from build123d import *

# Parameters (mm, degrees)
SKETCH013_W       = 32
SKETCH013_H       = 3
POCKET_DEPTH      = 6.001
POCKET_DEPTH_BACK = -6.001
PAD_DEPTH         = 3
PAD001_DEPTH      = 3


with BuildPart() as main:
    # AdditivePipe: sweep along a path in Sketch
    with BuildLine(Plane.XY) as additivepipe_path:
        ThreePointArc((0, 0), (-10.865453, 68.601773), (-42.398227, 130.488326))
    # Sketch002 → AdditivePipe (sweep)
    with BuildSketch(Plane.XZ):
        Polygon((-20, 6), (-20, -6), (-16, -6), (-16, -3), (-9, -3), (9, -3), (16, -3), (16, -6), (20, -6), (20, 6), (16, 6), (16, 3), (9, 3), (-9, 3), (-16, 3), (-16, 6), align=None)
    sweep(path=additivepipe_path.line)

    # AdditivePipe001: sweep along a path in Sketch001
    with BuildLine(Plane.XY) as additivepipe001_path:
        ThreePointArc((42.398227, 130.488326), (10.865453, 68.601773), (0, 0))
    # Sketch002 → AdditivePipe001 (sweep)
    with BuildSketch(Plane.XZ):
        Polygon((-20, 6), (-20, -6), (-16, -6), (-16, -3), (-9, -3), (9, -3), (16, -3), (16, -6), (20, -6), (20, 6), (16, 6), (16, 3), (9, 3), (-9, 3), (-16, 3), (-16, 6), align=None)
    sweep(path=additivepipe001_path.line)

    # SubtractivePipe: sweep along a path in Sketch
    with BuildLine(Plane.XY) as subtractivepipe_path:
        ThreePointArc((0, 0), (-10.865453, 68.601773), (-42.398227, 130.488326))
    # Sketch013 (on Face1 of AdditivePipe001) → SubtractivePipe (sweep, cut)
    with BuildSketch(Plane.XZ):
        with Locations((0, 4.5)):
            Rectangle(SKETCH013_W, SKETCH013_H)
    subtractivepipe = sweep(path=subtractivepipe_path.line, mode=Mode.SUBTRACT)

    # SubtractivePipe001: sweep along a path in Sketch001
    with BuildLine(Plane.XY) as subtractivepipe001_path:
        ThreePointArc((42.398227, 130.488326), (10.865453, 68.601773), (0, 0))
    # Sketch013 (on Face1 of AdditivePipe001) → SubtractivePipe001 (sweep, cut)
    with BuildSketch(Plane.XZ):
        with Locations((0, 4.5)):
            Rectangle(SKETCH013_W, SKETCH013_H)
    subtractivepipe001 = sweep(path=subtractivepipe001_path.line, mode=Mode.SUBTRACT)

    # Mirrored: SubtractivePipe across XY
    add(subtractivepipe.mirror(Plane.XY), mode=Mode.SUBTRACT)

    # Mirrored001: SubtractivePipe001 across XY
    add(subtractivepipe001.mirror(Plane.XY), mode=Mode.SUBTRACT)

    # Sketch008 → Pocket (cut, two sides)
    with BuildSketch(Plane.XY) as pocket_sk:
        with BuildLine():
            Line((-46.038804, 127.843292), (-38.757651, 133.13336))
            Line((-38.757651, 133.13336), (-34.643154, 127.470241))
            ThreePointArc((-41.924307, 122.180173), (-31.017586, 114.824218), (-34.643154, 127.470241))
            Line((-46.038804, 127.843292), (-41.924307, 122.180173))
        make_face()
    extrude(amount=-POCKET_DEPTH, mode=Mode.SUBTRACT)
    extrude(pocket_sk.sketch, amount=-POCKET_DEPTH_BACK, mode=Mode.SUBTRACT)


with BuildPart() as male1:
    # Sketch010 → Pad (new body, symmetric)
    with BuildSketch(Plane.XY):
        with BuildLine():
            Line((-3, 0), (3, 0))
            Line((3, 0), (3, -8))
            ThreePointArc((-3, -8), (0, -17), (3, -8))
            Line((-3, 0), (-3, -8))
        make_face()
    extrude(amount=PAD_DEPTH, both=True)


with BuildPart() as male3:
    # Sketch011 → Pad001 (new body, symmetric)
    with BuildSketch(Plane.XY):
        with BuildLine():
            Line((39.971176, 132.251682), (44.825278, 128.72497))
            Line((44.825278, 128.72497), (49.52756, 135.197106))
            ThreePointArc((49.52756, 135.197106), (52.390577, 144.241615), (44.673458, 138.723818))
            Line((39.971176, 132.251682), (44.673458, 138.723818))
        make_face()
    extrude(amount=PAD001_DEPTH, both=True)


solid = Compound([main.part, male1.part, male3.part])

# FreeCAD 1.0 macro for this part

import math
import FreeCAD as App
import Part
import Sketcher

V = App.Vector
Q = App.Units.Quantity

doc = App.newDocument("Part")
body = doc.addObject("PartDesign::Body", "Body")

# Sketch on XZ plane
sketch1 = body.newObject("Sketcher::SketchObject", "Sketch")
sketch1.AttachmentSupport = (doc.getObject("XZ_Plane"), [""])
sketch1.MapMode = "FlatFace"
sketch1.addGeometry([
    Part.LineSegment(V(-20, 6, 0), V(-20, -6, 0)),  # 0
    Part.LineSegment(V(-20, -6, 0), V(-16, -6, 0)),  # 1
    Part.LineSegment(V(-16, -6, 0), V(-16, -3, 0)),  # 2
    Part.LineSegment(V(-16, -3, 0), V(16, -3, 0)),  # 3
    Part.LineSegment(V(16, -3, 0), V(16, -6, 0)),  # 4
    Part.LineSegment(V(16, -6, 0), V(20, -6, 0)),  # 5
    Part.LineSegment(V(20, -6, 0), V(20, 6, 0)),  # 6
    Part.LineSegment(V(20, 6, 0), V(16, 6, 0)),  # 7
    Part.LineSegment(V(16, 6, 0), V(16, 3, 0)),  # 8
    Part.LineSegment(V(16, 3, 0), V(-16, 3, 0)),  # 9
    Part.LineSegment(V(-16, 3, 0), V(-16, 6, 0)),  # 10
    Part.LineSegment(V(-16, 6, 0), V(-20, 6, 0)),  # 11
], False)
sketch1.addConstraint([
    Sketcher.Constraint("Coincident", 0, 2, 1, 1),
    Sketcher.Constraint("Coincident", 1, 2, 2, 1),
    Sketcher.Constraint("Coincident", 2, 2, 3, 1),
    Sketcher.Constraint("Coincident", 3, 2, 4, 1),
    Sketcher.Constraint("Coincident", 4, 2, 5, 1),
    Sketcher.Constraint("Coincident", 5, 2, 6, 1),
    Sketcher.Constraint("Coincident", 6, 2, 7, 1),
    Sketcher.Constraint("Coincident", 7, 2, 8, 1),
    Sketcher.Constraint("Coincident", 8, 2, 9, 1),
    Sketcher.Constraint("Coincident", 9, 2, 10, 1),
    Sketcher.Constraint("Coincident", 10, 2, 11, 1),
    Sketcher.Constraint("Coincident", 11, 2, 0, 1),
    Sketcher.Constraint("Vertical", 0),
    Sketcher.Constraint("Horizontal", 1),
    Sketcher.Constraint("Vertical", 2),
    Sketcher.Constraint("Horizontal", 3),
    Sketcher.Constraint("Vertical", 4),
    Sketcher.Constraint("Horizontal", 5),
    Sketcher.Constraint("Vertical", 6),
    Sketcher.Constraint("Horizontal", 7),
    Sketcher.Constraint("Vertical", 8),
    Sketcher.Constraint("Horizontal", 9),
    Sketcher.Constraint("Vertical", 10),
    Sketcher.Constraint("Horizontal", 11),
    Sketcher.Constraint("Symmetric", 0, 2, 6, 2, -1, 1),
    Sketcher.Constraint("Symmetric", 2, 2, 8, 2, -1, 1),
    Sketcher.Constraint("Symmetric", 4, 2, 10, 2, -1, 1),
    Sketcher.Constraint("Symmetric", 1, 2, 4, 2, -2),
    Sketcher.Constraint("DistanceX", 1, 1, 1, 2, Q("4 mm")),
    Sketcher.Constraint("DistanceX", 3, 1, 3, 2, Q("32 mm")),
    Sketcher.Constraint("DistanceY", 0, 2, 0, 1, Q("12 mm")),
    Sketcher.Constraint("DistanceY", 2, 1, 2, 2, Q("3 mm")),
])

# Sketch on XY plane
sketch2 = body.newObject("Sketcher::SketchObject", "Sketch001")
sketch2.AttachmentSupport = (doc.getObject("XY_Plane"), [""])
sketch2.MapMode = "FlatFace"
sketch2.addGeometry(Part.ArcOfCircle(Part.Circle(V(-222, 0, 0), V(0, 0, 1), 222), math.radians(0), math.radians(36)), False)
sketch2.addConstraint([
    Sketcher.Constraint("Coincident", 0, 1, -1, 1),
    Sketcher.Constraint("Radius", 0, Q("221.999993 mm")),
    Sketcher.Constraint("DistanceX", 0, 2, -1, 1, Q("42.398227 mm")),
    Sketcher.Constraint("DistanceY", -1, 1, 0, 2, Q("130.488326 mm")),
])
doc.recompute()

additivepipe = body.newObject("PartDesign::AdditivePipe", "AdditivePipe")
additivepipe.Profile = sketch1
additivepipe.Spine = (sketch2, ["Edge1"])

# Sketch on XZ plane
sketch3 = body.newObject("Sketcher::SketchObject", "Sketch002")
sketch3.AttachmentSupport = (doc.getObject("XZ_Plane"), [""])
sketch3.MapMode = "FlatFace"
sketch3.addGeometry([
    Part.LineSegment(V(-20, 6, 0), V(-20, -6, 0)),  # 0
    Part.LineSegment(V(-20, -6, 0), V(-16, -6, 0)),  # 1
    Part.LineSegment(V(-16, -6, 0), V(-16, -3, 0)),  # 2
    Part.LineSegment(V(-16, -3, 0), V(16, -3, 0)),  # 3
    Part.LineSegment(V(16, -3, 0), V(16, -6, 0)),  # 4
    Part.LineSegment(V(16, -6, 0), V(20, -6, 0)),  # 5
    Part.LineSegment(V(20, -6, 0), V(20, 6, 0)),  # 6
    Part.LineSegment(V(20, 6, 0), V(16, 6, 0)),  # 7
    Part.LineSegment(V(16, 6, 0), V(16, 3, 0)),  # 8
    Part.LineSegment(V(16, 3, 0), V(-16, 3, 0)),  # 9
    Part.LineSegment(V(-16, 3, 0), V(-16, 6, 0)),  # 10
    Part.LineSegment(V(-16, 6, 0), V(-20, 6, 0)),  # 11
], False)
sketch3.addConstraint([
    Sketcher.Constraint("Coincident", 0, 2, 1, 1),
    Sketcher.Constraint("Coincident", 1, 2, 2, 1),
    Sketcher.Constraint("Coincident", 2, 2, 3, 1),
    Sketcher.Constraint("Coincident", 3, 2, 4, 1),
    Sketcher.Constraint("Coincident", 4, 2, 5, 1),
    Sketcher.Constraint("Coincident", 5, 2, 6, 1),
    Sketcher.Constraint("Coincident", 6, 2, 7, 1),
    Sketcher.Constraint("Coincident", 7, 2, 8, 1),
    Sketcher.Constraint("Coincident", 8, 2, 9, 1),
    Sketcher.Constraint("Coincident", 9, 2, 10, 1),
    Sketcher.Constraint("Coincident", 10, 2, 11, 1),
    Sketcher.Constraint("Coincident", 11, 2, 0, 1),
    Sketcher.Constraint("Vertical", 0),
    Sketcher.Constraint("Horizontal", 1),
    Sketcher.Constraint("Vertical", 2),
    Sketcher.Constraint("Horizontal", 3),
    Sketcher.Constraint("Vertical", 4),
    Sketcher.Constraint("Horizontal", 5),
    Sketcher.Constraint("Vertical", 6),
    Sketcher.Constraint("Horizontal", 7),
    Sketcher.Constraint("Vertical", 8),
    Sketcher.Constraint("Horizontal", 9),
    Sketcher.Constraint("Vertical", 10),
    Sketcher.Constraint("Horizontal", 11),
    Sketcher.Constraint("Symmetric", 0, 2, 6, 2, -1, 1),
    Sketcher.Constraint("Symmetric", 2, 2, 8, 2, -1, 1),
    Sketcher.Constraint("Symmetric", 4, 2, 10, 2, -1, 1),
    Sketcher.Constraint("Symmetric", 1, 2, 4, 2, -2),
    Sketcher.Constraint("DistanceX", 1, 1, 1, 2, Q("4 mm")),
    Sketcher.Constraint("DistanceX", 3, 1, 3, 2, Q("32 mm")),
    Sketcher.Constraint("DistanceY", 0, 2, 0, 1, Q("12 mm")),
    Sketcher.Constraint("DistanceY", 2, 1, 2, 2, Q("3 mm")),
])

# Sketch on XY plane
sketch4 = body.newObject("Sketcher::SketchObject", "Sketch003")
sketch4.AttachmentSupport = (doc.getObject("XY_Plane"), [""])
sketch4.MapMode = "FlatFace"
sketch4.addGeometry(Part.ArcOfCircle(Part.Circle(V(222, 0, 0), V(0, 0, 1), 222), math.radians(144), math.radians(180)), False)
sketch4.addConstraint([
    Sketcher.Constraint("Coincident", 0, 2, -1, 1),
    Sketcher.Constraint("Radius", 0, Q("221.999993 mm")),
    Sketcher.Constraint("DistanceX", -1, 1, 0, 1, Q("42.398227 mm")),
    Sketcher.Constraint("DistanceY", -1, 1, 0, 1, Q("130.488326 mm")),
])
doc.recompute()

additivepipe2 = body.newObject("PartDesign::AdditivePipe", "AdditivePipe001")
additivepipe2.Profile = sketch3
additivepipe2.Spine = (sketch4, ["Edge1"])

# Sketch on XZ plane
sketch5 = body.newObject("Sketcher::SketchObject", "Sketch004")
sketch5.AttachmentSupport = (doc.getObject("XZ_Plane"), [""])
sketch5.MapMode = "FlatFace"
sketch5.addGeometry([
    Part.LineSegment(V(-16, 6, 0), V(-16, 3, 0)),
    Part.LineSegment(V(-16, 3, 0), V(16, 3, 0)),
    Part.LineSegment(V(16, 3, 0), V(16, 6, 0)),
    Part.LineSegment(V(16, 6, 0), V(-16, 6, 0)),
], False)
sketch5.addConstraint([
    Sketcher.Constraint("Coincident", 0, 2, 1, 1),
    Sketcher.Constraint("Coincident", 1, 2, 2, 1),
    Sketcher.Constraint("Coincident", 2, 2, 3, 1),
    Sketcher.Constraint("Coincident", 3, 2, 0, 1),
    Sketcher.Constraint("Vertical", 0),
    Sketcher.Constraint("Horizontal", 1),
    Sketcher.Constraint("Vertical", 2),
    Sketcher.Constraint("Horizontal", 3),
    Sketcher.Constraint("DistanceX", 1, 1, 1, 2, Q("32 mm")),
    Sketcher.Constraint("DistanceY", 0, 2, 0, 1, Q("3 mm")),
    Sketcher.Constraint("DistanceX", 0, 2, -1, 1, Q("16 mm")),
    Sketcher.Constraint("DistanceY", -1, 1, 0, 2, Q("3 mm")),
])

# Sketch on XY plane
sketch6 = body.newObject("Sketcher::SketchObject", "Sketch005")
sketch6.AttachmentSupport = (doc.getObject("XY_Plane"), [""])
sketch6.MapMode = "FlatFace"
sketch6.addGeometry(Part.ArcOfCircle(Part.Circle(V(-222, 0, 0), V(0, 0, 1), 222), math.radians(0), math.radians(36)), False)
sketch6.addConstraint([
    Sketcher.Constraint("Coincident", 0, 1, -1, 1),
    Sketcher.Constraint("Radius", 0, Q("221.999993 mm")),
    Sketcher.Constraint("DistanceX", 0, 2, -1, 1, Q("42.398227 mm")),
    Sketcher.Constraint("DistanceY", -1, 1, 0, 2, Q("130.488326 mm")),
])
doc.recompute()

subtractivepipe = body.newObject("PartDesign::SubtractivePipe", "SubtractivePipe")
subtractivepipe.Profile = sketch5
subtractivepipe.Spine = (sketch6, ["Edge1"])

# Sketch on XZ plane
sketch7 = body.newObject("Sketcher::SketchObject", "Sketch006")
sketch7.AttachmentSupport = (doc.getObject("XZ_Plane"), [""])
sketch7.MapMode = "FlatFace"
sketch7.addGeometry([
    Part.LineSegment(V(-16, 6, 0), V(-16, 3, 0)),
    Part.LineSegment(V(-16, 3, 0), V(16, 3, 0)),
    Part.LineSegment(V(16, 3, 0), V(16, 6, 0)),
    Part.LineSegment(V(16, 6, 0), V(-16, 6, 0)),
], False)
sketch7.addConstraint([
    Sketcher.Constraint("Coincident", 0, 2, 1, 1),
    Sketcher.Constraint("Coincident", 1, 2, 2, 1),
    Sketcher.Constraint("Coincident", 2, 2, 3, 1),
    Sketcher.Constraint("Coincident", 3, 2, 0, 1),
    Sketcher.Constraint("Vertical", 0),
    Sketcher.Constraint("Horizontal", 1),
    Sketcher.Constraint("Vertical", 2),
    Sketcher.Constraint("Horizontal", 3),
    Sketcher.Constraint("DistanceX", 1, 1, 1, 2, Q("32 mm")),
    Sketcher.Constraint("DistanceY", 0, 2, 0, 1, Q("3 mm")),
    Sketcher.Constraint("DistanceX", 0, 2, -1, 1, Q("16 mm")),
    Sketcher.Constraint("DistanceY", -1, 1, 0, 2, Q("3 mm")),
])

# Sketch on XY plane
sketch8 = body.newObject("Sketcher::SketchObject", "Sketch007")
sketch8.AttachmentSupport = (doc.getObject("XY_Plane"), [""])
sketch8.MapMode = "FlatFace"
sketch8.addGeometry(Part.ArcOfCircle(Part.Circle(V(222, 0, 0), V(0, 0, 1), 222), math.radians(144), math.radians(180)), False)
sketch8.addConstraint([
    Sketcher.Constraint("Coincident", 0, 2, -1, 1),
    Sketcher.Constraint("Radius", 0, Q("221.999993 mm")),
    Sketcher.Constraint("DistanceX", -1, 1, 0, 1, Q("42.398227 mm")),
    Sketcher.Constraint("DistanceY", -1, 1, 0, 1, Q("130.488326 mm")),
])
doc.recompute()

subtractivepipe2 = body.newObject("PartDesign::SubtractivePipe", "SubtractivePipe001")
subtractivepipe2.Profile = sketch7
subtractivepipe2.Spine = (sketch8, ["Edge1"])
doc.recompute()

mirrored = body.newObject("PartDesign::Mirrored", "Mirrored")
mirrored.Originals = [subtractivepipe]
mirrored.MirrorPlane = (doc.getObject("XY_Plane"), [""])
body.Tip = mirrored
doc.recompute()

mirrored2 = body.newObject("PartDesign::Mirrored", "Mirrored001")
mirrored2.Originals = [subtractivepipe2]
mirrored2.MirrorPlane = (doc.getObject("XY_Plane"), [""])
body.Tip = mirrored2

# Sketch on XY plane
sketch9 = body.newObject("Sketcher::SketchObject", "Sketch008")
sketch9.AttachmentSupport = (doc.getObject("XY_Plane"), [""])
sketch9.MapMode = "FlatFace"
sketch9.addGeometry([
    Part.LineSegment(V(-39, 133, 0), V(-46, 128, 0)),
    Part.LineSegment(V(-46, 128, 0), V(-42, 122, 0)),
    Part.ArcOfCircle(Part.Circle(V(-35, 120, 0), V(0, 0, 1), 7), math.radians(166), math.radians(446)),
    Part.LineSegment(V(-35, 127, 0), V(-39, 133, 0)),
], False)
sketch9.addConstraint([
    Sketcher.Constraint("Coincident", 0, 2, 1, 1),
    Sketcher.Constraint("Coincident", 1, 2, 2, 1),
    Sketcher.Constraint("Coincident", 2, 2, 3, 1),
    Sketcher.Constraint("Coincident", 3, 2, 0, 1),
    Sketcher.Constraint("Perpendicular", 0, 1),
    Sketcher.Constraint("Parallel", 1, 3),
    Sketcher.Constraint("Equal", 1, 3),
    Sketcher.Constraint("Radius", 2, Q("7 mm")),
    Sketcher.Constraint("Angle", 0, Q("-143.999996 deg")),
    Sketcher.Constraint("Distance", 0, Q("9 mm")),
    Sketcher.Constraint("Distance", 1, Q("7 mm")),
    Sketcher.Constraint("DistanceY", -1, 1, 2, 2, Q("127.470241 mm")),
    Sketcher.Constraint("DistanceX", 3, 2, -1, 1, Q("38.757651 mm")),
])
pocket1 = body.newObject("PartDesign::Pocket", "Pocket")
pocket1.Profile = sketch9
pocket1.Type = "ThroughAll"
pocket1.Midplane = True
body2 = doc.addObject("PartDesign::Body", "Body001")

# Sketch on XY plane
sketch10 = body2.newObject("Sketcher::SketchObject", "Sketch009")
sketch10.AttachmentSupport = (doc.getObject("XY_Plane001"), [""])
sketch10.MapMode = "FlatFace"
sketch10.addGeometry([
    Part.LineSegment(V(3, 0, 0), V(-3, 0, 0)),
    Part.LineSegment(V(-3, 0, 0), V(-3, -8, 0)),
    Part.ArcOfCircle(Part.Circle(V(0, -12, 0), V(0, 0, 1), 5), math.radians(127), math.radians(413)),
    Part.LineSegment(V(3, -8, 0), V(3, 0, 0)),
], False)
sketch10.addConstraint([
    Sketcher.Constraint("Coincident", 0, 2, 1, 1),
    Sketcher.Constraint("Coincident", 1, 2, 2, 1),
    Sketcher.Constraint("Coincident", 2, 2, 3, 1),
    Sketcher.Constraint("Coincident", 3, 2, 0, 1),
    Sketcher.Constraint("Horizontal", 0),
    Sketcher.Constraint("Vertical", 1),
    Sketcher.Constraint("Vertical", 3),
    Sketcher.Constraint("Symmetric", 0, 2, 3, 2, -1, 1),
    Sketcher.Constraint("PointOnObject", 2, 3, -2),
    Sketcher.Constraint("Radius", 2, Q("5 mm")),
    Sketcher.Constraint("DistanceX", 0, 2, 0, 1, Q("6 mm")),
    Sketcher.Constraint("DistanceY", 1, 2, 1, 1, Q("8 mm")),
])
pad1 = body2.newObject("PartDesign::Pad", "Pad")
pad1.Profile = sketch10
pad1.Length = 6
pad1.Midplane = True
body3 = doc.addObject("PartDesign::Body", "Body002")

# Sketch on XY plane
sketch11 = body3.newObject("Sketcher::SketchObject", "Sketch010")
sketch11.AttachmentSupport = (doc.getObject("XY_Plane002"), [""])
sketch11.MapMode = "FlatFace"
sketch11.addGeometry([
    Part.LineSegment(V(40, 132, 0), V(45, 129, 0)),
    Part.LineSegment(V(45, 129, 0), V(50, 135, 0)),
    Part.ArcOfCircle(Part.Circle(V(49, 140, 0), V(0, 0, 1), 5), math.radians(-89), math.radians(197)),
    Part.LineSegment(V(45, 139, 0), V(40, 132, 0)),
], False)
sketch11.addConstraint([
    Sketcher.Constraint("Coincident", 0, 2, 1, 1),
    Sketcher.Constraint("Coincident", 1, 2, 2, 1),
    Sketcher.Constraint("Coincident", 2, 2, 3, 1),
    Sketcher.Constraint("Coincident", 3, 2, 0, 1),
    Sketcher.Constraint("Perpendicular", 0, 1),
    Sketcher.Constraint("Parallel", 1, 3),
    Sketcher.Constraint("Equal", 1, 3),
    Sketcher.Constraint("Radius", 2, Q("5 mm")),
    Sketcher.Constraint("Angle", 0, Q("-36.000004 deg")),
    Sketcher.Constraint("Distance", 0, Q("6 mm")),
    Sketcher.Constraint("Distance", 1, Q("8 mm")),
    Sketcher.Constraint("DistanceX", -1, 1, 2, 3, Q("49.45165 mm")),
    Sketcher.Constraint("DistanceY", -1, 1, 2, 3, Q("140.19653 mm")),
])
pad2 = body3.newObject("PartDesign::Pad", "Pad001")
pad2.Profile = sketch11
pad2.Length = 6
pad2.Midplane = True

doc.recompute()
